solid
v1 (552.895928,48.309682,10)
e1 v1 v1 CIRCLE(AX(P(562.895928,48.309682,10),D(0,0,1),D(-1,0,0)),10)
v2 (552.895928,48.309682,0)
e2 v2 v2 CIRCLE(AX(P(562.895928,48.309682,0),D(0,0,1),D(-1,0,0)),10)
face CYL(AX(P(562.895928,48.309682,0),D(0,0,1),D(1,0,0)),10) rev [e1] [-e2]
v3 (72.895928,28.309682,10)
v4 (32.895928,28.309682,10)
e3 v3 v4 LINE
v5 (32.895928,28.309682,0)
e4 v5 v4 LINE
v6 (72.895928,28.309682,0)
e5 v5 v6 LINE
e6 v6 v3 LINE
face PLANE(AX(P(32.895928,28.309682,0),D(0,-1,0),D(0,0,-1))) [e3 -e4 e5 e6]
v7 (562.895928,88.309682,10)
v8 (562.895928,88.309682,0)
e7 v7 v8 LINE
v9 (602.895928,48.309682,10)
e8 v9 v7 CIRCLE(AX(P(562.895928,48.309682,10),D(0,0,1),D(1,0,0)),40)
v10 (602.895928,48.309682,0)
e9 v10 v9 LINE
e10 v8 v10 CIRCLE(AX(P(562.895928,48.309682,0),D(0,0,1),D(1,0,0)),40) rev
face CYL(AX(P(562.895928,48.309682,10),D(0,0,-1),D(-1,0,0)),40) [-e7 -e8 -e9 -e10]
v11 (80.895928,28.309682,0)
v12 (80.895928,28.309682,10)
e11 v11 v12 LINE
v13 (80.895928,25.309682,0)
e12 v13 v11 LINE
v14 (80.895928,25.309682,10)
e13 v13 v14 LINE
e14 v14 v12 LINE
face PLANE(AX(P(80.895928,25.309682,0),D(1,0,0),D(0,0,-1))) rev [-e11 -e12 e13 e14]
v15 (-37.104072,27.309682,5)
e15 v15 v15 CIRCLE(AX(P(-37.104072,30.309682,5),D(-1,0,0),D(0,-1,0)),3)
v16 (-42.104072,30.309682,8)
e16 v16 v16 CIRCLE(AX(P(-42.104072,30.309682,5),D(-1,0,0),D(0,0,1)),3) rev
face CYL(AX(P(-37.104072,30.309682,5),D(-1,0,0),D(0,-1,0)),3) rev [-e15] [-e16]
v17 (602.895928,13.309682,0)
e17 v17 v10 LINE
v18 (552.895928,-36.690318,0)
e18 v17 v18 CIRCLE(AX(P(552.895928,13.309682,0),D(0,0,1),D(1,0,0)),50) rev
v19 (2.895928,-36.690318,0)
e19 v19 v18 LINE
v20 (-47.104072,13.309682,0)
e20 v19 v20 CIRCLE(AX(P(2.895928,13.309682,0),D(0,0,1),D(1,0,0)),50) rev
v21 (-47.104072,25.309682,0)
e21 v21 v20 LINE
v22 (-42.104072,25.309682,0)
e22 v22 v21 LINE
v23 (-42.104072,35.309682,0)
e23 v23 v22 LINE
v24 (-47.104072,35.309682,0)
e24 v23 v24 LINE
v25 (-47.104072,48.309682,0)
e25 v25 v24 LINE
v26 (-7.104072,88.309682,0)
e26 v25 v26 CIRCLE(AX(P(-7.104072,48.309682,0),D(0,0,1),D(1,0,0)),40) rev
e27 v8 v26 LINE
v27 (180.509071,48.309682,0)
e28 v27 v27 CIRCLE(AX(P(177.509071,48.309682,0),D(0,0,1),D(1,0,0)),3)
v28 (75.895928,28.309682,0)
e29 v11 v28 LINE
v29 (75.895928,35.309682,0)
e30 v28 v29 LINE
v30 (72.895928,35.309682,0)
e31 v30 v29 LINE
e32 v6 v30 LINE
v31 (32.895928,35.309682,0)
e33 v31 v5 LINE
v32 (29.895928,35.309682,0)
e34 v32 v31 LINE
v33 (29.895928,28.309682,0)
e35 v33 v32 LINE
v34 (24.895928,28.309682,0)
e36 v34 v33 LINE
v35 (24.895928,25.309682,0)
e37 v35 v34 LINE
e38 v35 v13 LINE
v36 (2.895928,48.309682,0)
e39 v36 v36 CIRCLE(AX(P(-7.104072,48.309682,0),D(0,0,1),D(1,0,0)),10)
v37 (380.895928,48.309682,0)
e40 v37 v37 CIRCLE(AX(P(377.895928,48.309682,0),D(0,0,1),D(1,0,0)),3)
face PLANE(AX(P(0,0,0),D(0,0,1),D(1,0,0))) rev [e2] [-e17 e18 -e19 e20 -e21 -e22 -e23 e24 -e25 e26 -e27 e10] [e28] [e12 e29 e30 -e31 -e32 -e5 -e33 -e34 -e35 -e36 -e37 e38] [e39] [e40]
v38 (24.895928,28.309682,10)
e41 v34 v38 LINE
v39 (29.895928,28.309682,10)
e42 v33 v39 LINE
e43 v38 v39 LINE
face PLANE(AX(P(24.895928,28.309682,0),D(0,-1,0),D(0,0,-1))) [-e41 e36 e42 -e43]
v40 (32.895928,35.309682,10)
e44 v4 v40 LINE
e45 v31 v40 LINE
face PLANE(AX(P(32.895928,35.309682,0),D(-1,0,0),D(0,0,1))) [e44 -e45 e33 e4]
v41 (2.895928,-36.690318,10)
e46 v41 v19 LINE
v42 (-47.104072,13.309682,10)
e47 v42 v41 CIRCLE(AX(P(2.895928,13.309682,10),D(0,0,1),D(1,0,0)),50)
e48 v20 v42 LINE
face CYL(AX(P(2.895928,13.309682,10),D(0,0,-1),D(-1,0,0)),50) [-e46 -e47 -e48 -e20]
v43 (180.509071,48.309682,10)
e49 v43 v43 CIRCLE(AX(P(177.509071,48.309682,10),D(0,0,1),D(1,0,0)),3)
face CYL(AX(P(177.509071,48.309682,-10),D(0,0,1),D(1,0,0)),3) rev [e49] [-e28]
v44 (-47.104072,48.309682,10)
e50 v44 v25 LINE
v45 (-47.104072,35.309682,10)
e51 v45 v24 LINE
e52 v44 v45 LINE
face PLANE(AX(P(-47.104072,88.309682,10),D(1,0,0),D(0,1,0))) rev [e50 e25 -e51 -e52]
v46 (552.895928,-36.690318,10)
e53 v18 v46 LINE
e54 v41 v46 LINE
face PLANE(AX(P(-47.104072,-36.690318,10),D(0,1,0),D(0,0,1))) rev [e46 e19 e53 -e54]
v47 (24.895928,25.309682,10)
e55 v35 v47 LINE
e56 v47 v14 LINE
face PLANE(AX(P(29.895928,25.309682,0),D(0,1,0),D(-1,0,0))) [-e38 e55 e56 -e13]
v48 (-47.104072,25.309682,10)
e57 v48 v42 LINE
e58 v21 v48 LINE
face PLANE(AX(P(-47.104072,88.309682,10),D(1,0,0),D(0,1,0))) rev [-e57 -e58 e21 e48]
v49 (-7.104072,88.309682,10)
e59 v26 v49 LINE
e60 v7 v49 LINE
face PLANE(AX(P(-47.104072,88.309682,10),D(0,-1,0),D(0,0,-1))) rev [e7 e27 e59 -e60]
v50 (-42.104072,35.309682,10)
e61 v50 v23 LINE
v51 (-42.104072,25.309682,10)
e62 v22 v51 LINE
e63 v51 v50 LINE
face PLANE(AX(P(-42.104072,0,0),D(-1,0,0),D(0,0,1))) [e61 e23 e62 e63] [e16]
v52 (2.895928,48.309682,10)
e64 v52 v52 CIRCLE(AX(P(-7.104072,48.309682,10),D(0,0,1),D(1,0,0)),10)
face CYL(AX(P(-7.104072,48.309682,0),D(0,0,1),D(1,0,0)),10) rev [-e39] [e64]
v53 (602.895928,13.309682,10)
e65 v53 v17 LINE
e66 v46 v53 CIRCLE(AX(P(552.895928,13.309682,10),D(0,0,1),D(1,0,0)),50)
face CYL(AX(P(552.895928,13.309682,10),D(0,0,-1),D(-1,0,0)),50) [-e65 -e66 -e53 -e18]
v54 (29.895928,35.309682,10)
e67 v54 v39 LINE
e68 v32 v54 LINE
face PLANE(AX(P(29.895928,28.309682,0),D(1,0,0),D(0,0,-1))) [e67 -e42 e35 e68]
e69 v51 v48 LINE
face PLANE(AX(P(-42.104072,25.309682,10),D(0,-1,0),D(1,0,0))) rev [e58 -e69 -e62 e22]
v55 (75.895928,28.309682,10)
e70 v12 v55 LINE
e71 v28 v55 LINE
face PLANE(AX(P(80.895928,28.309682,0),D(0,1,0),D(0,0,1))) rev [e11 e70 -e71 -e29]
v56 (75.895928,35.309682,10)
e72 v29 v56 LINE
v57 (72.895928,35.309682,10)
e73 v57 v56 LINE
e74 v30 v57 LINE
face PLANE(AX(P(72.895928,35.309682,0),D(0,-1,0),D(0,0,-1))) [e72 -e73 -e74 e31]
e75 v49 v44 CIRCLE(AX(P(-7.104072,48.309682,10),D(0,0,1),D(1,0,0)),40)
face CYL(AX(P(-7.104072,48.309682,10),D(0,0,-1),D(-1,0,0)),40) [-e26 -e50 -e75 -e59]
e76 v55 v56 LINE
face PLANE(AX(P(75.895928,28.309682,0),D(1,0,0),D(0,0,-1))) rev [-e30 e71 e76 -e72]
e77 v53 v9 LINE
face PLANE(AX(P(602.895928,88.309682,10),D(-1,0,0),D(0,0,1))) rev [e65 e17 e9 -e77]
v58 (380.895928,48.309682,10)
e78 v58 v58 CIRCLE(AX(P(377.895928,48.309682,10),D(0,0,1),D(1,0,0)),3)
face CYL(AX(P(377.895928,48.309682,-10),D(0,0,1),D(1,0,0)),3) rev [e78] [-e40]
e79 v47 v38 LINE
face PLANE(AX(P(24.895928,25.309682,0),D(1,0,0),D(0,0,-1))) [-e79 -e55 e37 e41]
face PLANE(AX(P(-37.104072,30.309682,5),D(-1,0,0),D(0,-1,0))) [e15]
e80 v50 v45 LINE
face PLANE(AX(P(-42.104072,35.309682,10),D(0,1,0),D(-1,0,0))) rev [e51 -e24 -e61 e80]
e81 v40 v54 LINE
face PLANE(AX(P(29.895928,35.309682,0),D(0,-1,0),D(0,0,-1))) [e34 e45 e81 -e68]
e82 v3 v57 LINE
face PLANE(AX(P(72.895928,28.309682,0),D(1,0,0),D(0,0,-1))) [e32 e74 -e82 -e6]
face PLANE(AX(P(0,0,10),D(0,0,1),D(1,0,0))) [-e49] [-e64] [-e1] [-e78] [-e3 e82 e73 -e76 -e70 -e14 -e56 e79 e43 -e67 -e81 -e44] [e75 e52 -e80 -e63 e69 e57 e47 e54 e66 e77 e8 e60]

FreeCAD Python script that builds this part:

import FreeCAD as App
import Part
import Sketcher


def edges_at(feature, points):
    """Names of the edges that pass closest to the given points."""
    edges = feature.Shape.Edges
    near = lambda p: min(range(len(edges)), key=lambda i: edges[i].distToShape(Part.Vertex(*p))[0])
    return sorted({f"Edge{near(p) + 1}" for p in points})

doc = App.newDocument("Part")
body = doc.addObject("PartDesign::Body", "Body")

# Sketch on XY plane
sketch1 = body.newObject("Sketcher::SketchObject", "Sketch")
sketch1.AttachmentSupport = (doc.getObject("XY_Plane"), [""])
sketch1.MapMode = "FlatFace"
sketch1.addGeometry(Part.LineSegment(App.Vector(-47, 88, 0), App.Vector(-47, -37, 0)), False)
sketch1.addGeometry(Part.LineSegment(App.Vector(-47, -37, 0), App.Vector(603, -37, 0)), False)
sketch1.addGeometry(Part.LineSegment(App.Vector(603, -37, 0), App.Vector(603, 88, 0)), False)
sketch1.addGeometry(Part.LineSegment(App.Vector(603, 88, 0), App.Vector(-47, 88, 0)), False)
sketch1.addConstraint(Sketcher.Constraint("Coincident", 0, 2, 1, 1))
sketch1.addConstraint(Sketcher.Constraint("Coincident", 1, 2, 2, 1))
sketch1.addConstraint(Sketcher.Constraint("Coincident", 2, 2, 3, 1))
sketch1.addConstraint(Sketcher.Constraint("Coincident", 3, 2, 0, 1))
sketch1.addConstraint(Sketcher.Constraint("Vertical", 0))
sketch1.addConstraint(Sketcher.Constraint("Horizontal", 1))
sketch1.addConstraint(Sketcher.Constraint("Vertical", 2))
sketch1.addConstraint(Sketcher.Constraint("Horizontal", 3))
sketch1.addConstraint(Sketcher.Constraint("DistanceX", 1, 1, 1, 2, 650.0))
sketch1.addConstraint(Sketcher.Constraint("DistanceY", 0, 2, 0, 1, 125.0))
sketch1.addConstraint(Sketcher.Constraint("DistanceX", 0, 2, -1, 1, 47.104072))
sketch1.addConstraint(Sketcher.Constraint("DistanceY", 0, 2, -1, 1, 36.690318))
pad1 = body.newObject("PartDesign::Pad", "Pad")
pad1.Profile = sketch1
pad1.Length = 10

# Sketch on XY plane
sketch2 = body.newObject("Sketcher::SketchObject", "Sketch001")
sketch2.AttachmentSupport = (doc.getObject("XY_Plane"), [""])
sketch2.MapMode = "FlatFace"
sketch2.AttachmentOffset = App.Placement(App.Vector(0, 0, 10), App.Rotation())
sketch2.addGeometry(Part.Circle(App.Vector(-7, 48, 0), App.Vector(0, 0, 1), 10), False)
sketch2.addConstraint(Sketcher.Constraint("Diameter", 0, 20.0))
sketch2.addConstraint(Sketcher.Constraint("DistanceX", 0, 3, -1, 1, 7.104072))
sketch2.addConstraint(Sketcher.Constraint("DistanceY", -1, 1, 0, 3, 48.309682))
pocket1 = body.newObject("PartDesign::Pocket", "Pocket")
pocket1.Profile = sketch2
pocket1.Length = 10

# Sketch on XY plane
sketch3 = body.newObject("Sketcher::SketchObject", "Sketch002")
sketch3.AttachmentSupport = (doc.getObject("XY_Plane"), [""])
sketch3.MapMode = "FlatFace"
sketch3.AttachmentOffset = App.Placement(App.Vector(0, 0, 10), App.Rotation())
sketch3.addGeometry(Part.Circle(App.Vector(563, 48, 0), App.Vector(0, 0, 1), 10), False)
sketch3.addConstraint(Sketcher.Constraint("Diameter", 0, 20.0))
sketch3.addConstraint(Sketcher.Constraint("DistanceX", -1, 1, 0, 3, 562.895928))
sketch3.addConstraint(Sketcher.Constraint("DistanceY", -1, 1, 0, 3, 48.309682))
pocket2 = body.newObject("PartDesign::Pocket", "Pocket001")
pocket2.Profile = sketch3
pocket2.Length = 10

# Sketch on XY plane
sketch4 = body.newObject("Sketcher::SketchObject", "Sketch003")
sketch4.AttachmentSupport = (doc.getObject("XY_Plane"), [""])
sketch4.MapMode = "FlatFace"
sketch4.AttachmentOffset = App.Placement(App.Vector(0, 0, 10), App.Rotation())
sketch4.addGeometry(Part.LineSegment(App.Vector(32.9, 68.3, 0), App.Vector(72.9, 68.3, 0)), False)
sketch4.addGeometry(Part.LineSegment(App.Vector(72.9, 68.3, 0), App.Vector(72.9, 28.3, 0)), False)
sketch4.addGeometry(Part.LineSegment(App.Vector(72.9, 28.3, 0), App.Vector(32.9, 28.3, 0)), False)
sketch4.addGeometry(Part.LineSegment(App.Vector(32.9, 28.3, 0), App.Vector(32.9, 35.3, 0)), False)
sketch4.addGeometry(Part.LineSegment(App.Vector(32.9, 35.3, 0), App.Vector(29.9, 35.3, 0)), False)
sketch4.addGeometry(Part.LineSegment(App.Vector(29.9, 35.3, 0), App.Vector(29.9, 25.3, 0)), False)
sketch4.addGeometry(Part.LineSegment(App.Vector(29.9, 25.3, 0), App.Vector(75.9, 25.3, 0)), False)
sketch4.addGeometry(Part.LineSegment(App.Vector(75.9, 25.3, 0), App.Vector(75.9, 71.3, 0)), False)
sketch4.addGeometry(Part.LineSegment(App.Vector(75.9, 71.3, 0), App.Vector(29.9, 71.3, 0)), False)
sketch4.addGeometry(Part.LineSegment(App.Vector(29.9, 71.3, 0), App.Vector(29.9, 61.3, 0)), False)
sketch4.addGeometry(Part.LineSegment(App.Vector(29.9, 61.3, 0), App.Vector(32.9, 61.3, 0)), False)
sketch4.addGeometry(Part.LineSegment(App.Vector(32.9, 61.3, 0), App.Vector(32.9, 68.3, 0)), False)
sketch4.addConstraint(Sketcher.Constraint("Coincident", 0, 2, 1, 1))
sketch4.addConstraint(Sketcher.Constraint("Coincident", 1, 2, 2, 1))
sketch4.addConstraint(Sketcher.Constraint("Coincident", 2, 2, 3, 1))
sketch4.addConstraint(Sketcher.Constraint("Coincident", 3, 2, 4, 1))
sketch4.addConstraint(Sketcher.Constraint("Coincident", 4, 2, 5, 1))
sketch4.addConstraint(Sketcher.Constraint("Coincident", 5, 2, 6, 1))
sketch4.addConstraint(Sketcher.Constraint("Coincident", 6, 2, 7, 1))
sketch4.addConstraint(Sketcher.Constraint("Coincident", 7, 2, 8, 1))
sketch4.addConstraint(Sketcher.Constraint("Coincident", 8, 2, 9, 1))
sketch4.addConstraint(Sketcher.Constraint("Coincident", 9, 2, 10, 1))
sketch4.addConstraint(Sketcher.Constraint("Coincident", 10, 2, 11, 1))
sketch4.addConstraint(Sketcher.Constraint("Coincident", 11, 2, 0, 1))
sketch4.addConstraint(Sketcher.Constraint("Horizontal", 0))
sketch4.addConstraint(Sketcher.Constraint("Vertical", 1))
sketch4.addConstraint(Sketcher.Constraint("Horizontal", 2))
sketch4.addConstraint(Sketcher.Constraint("Vertical", 3))
sketch4.addConstraint(Sketcher.Constraint("Horizontal", 4))
sketch4.addConstraint(Sketcher.Constraint("Vertical", 5))
sketch4.addConstraint(Sketcher.Constraint("Horizontal", 6))
sketch4.addConstraint(Sketcher.Constraint("Vertical", 7))
sketch4.addConstraint(Sketcher.Constraint("Horizontal", 8))
sketch4.addConstraint(Sketcher.Constraint("Vertical", 9))
sketch4.addConstraint(Sketcher.Constraint("Horizontal", 10))
sketch4.addConstraint(Sketcher.Constraint("Vertical", 11))
sketch4.addConstraint(Sketcher.Constraint("Vertical", 5, 2, 8, 2))
sketch4.addConstraint(Sketcher.Constraint("Vertical", 3, 2, 10, 2))
sketch4.addConstraint(Sketcher.Constraint("Equal", 2, 1))
sketch4.addConstraint(Sketcher.Constraint("Equal", 8, 7))
sketch4.addConstraint(Sketcher.Constraint("Equal", 5, 9))
sketch4.addConstraint(Sketcher.Constraint("Equal", 3, 11))
sketch4.addConstraint(Sketcher.Constraint("DistanceX", 0, 1, 0, 2, 40.0))
sketch4.addConstraint(Sketcher.Constraint("DistanceX", 4, 2, 4, 1, 3.0))
sketch4.addConstraint(Sketcher.Constraint("DistanceX", 6, 1, 6, 2, 46.0))
sketch4.addConstraint(Sketcher.Constraint("DistanceY", 3, 1, 3, 2, 7.0))
sketch4.addConstraint(Sketcher.Constraint("DistanceX", -1, 1, 0, 2, 72.895928))
sketch4.addConstraint(Sketcher.Constraint("DistanceY", -1, 1, 0, 2, 68.309682))
pad2 = body.newObject("PartDesign::Pad", "Pad001")
pad2.Profile = sketch4
pad2.Length = 20

# Sketch on XY plane
sketch5 = body.newObject("Sketcher::SketchObject", "Sketch004")
sketch5.AttachmentSupport = (doc.getObject("XY_Plane"), [""])
sketch5.MapMode = "FlatFace"
sketch5.AttachmentOffset = App.Placement(App.Vector(0, 0, 30), App.Rotation())
sketch5.addGeometry(Part.LineSegment(App.Vector(39.9, 71.3, 0), App.Vector(39.9, 68.3, 0)), False)
sketch5.addGeometry(Part.LineSegment(App.Vector(39.9, 68.3, 0), App.Vector(65.9, 68.3, 0)), False)
sketch5.addGeometry(Part.LineSegment(App.Vector(65.9, 68.3, 0), App.Vector(65.9, 71.3, 0)), False)
sketch5.addGeometry(Part.LineSegment(App.Vector(65.9, 71.3, 0), App.Vector(39.9, 71.3, 0)), False)
sketch5.addConstraint(Sketcher.Constraint("Coincident", 0, 2, 1, 1))
sketch5.addConstraint(Sketcher.Constraint("Coincident", 1, 2, 2, 1))
sketch5.addConstraint(Sketcher.Constraint("Coincident", 2, 2, 3, 1))
sketch5.addConstraint(Sketcher.Constraint("Coincident", 3, 2, 0, 1))
sketch5.addConstraint(Sketcher.Constraint("Vertical", 0))
sketch5.addConstraint(Sketcher.Constraint("Horizontal", 1))
sketch5.addConstraint(Sketcher.Constraint("Vertical", 2))
sketch5.addConstraint(Sketcher.Constraint("Horizontal", 3))
sketch5.addConstraint(Sketcher.Constraint("DistanceX", 1, 1, 1, 2, 26.0))
sketch5.addConstraint(Sketcher.Constraint("DistanceY", 0, 2, 0, 1, 3.0))
sketch5.addConstraint(Sketcher.Constraint("DistanceX", -1, 1, 0, 2, 39.895928))
sketch5.addConstraint(Sketcher.Constraint("DistanceY", -1, 1, 0, 2, 68.309682))
pocket3 = body.newObject("PartDesign::Pocket", "Pocket002")
pocket3.Profile = sketch5
pocket3.Length = 20

# Sketch on XY plane
sketch6 = body.newObject("Sketcher::SketchObject", "Sketch005")
sketch6.AttachmentSupport = (doc.getObject("XY_Plane"), [""])
sketch6.MapMode = "FlatFace"
sketch6.AttachmentOffset = App.Placement(App.Vector(0, 0, 10), App.Rotation())
sketch6.addGeometry(Part.LineSegment(App.Vector(463.9, -36.7, 0), App.Vector(527.9, -36.7, 0)), False)
sketch6.addGeometry(Part.LineSegment(App.Vector(527.9, -36.7, 0), App.Vector(527.9, 25.3, 0)), False)
sketch6.addGeometry(Part.LineSegment(App.Vector(527.9, 25.3, 0), App.Vector(525.9, 25.3, 0)), False)
sketch6.addGeometry(Part.LineSegment(App.Vector(525.9, 25.3, 0), App.Vector(525.9, -34.7, 0)), False)
sketch6.addGeometry(Part.LineSegment(App.Vector(525.9, -34.7, 0), App.Vector(465.9, -34.7, 0)), False)
sketch6.addGeometry(Part.LineSegment(App.Vector(465.9, -34.7, 0), App.Vector(465.9, 25.3, 0)), False)
sketch6.addGeometry(Part.LineSegment(App.Vector(465.9, 25.3, 0), App.Vector(463.9, 25.3, 0)), False)
sketch6.addGeometry(Part.LineSegment(App.Vector(463.9, 25.3, 0), App.Vector(463.9, -36.7, 0)), False)
sketch6.addGeometry(Part.LineSegment(App.Vector(458.9, -36.7, 0), App.Vector(458.9, 25.3, 0)), False)
sketch6.addGeometry(Part.LineSegment(App.Vector(458.9, 25.3, 0), App.Vector(456.9, 25.3, 0)), False)
sketch6.addGeometry(Part.LineSegment(App.Vector(456.9, 25.3, 0), App.Vector(456.9, -34.7, 0)), False)
sketch6.addGeometry(Part.LineSegment(App.Vector(456.9, -34.7, 0), App.Vector(396.9, -34.7, 0)), False)
sketch6.addGeometry(Part.LineSegment(App.Vector(396.9, -34.7, 0), App.Vector(396.9, 25.3, 0)), False)
sketch6.addGeometry(Part.LineSegment(App.Vector(396.9, 25.3, 0), App.Vector(394.9, 25.3, 0)), False)
sketch6.addGeometry(Part.LineSegment(App.Vector(394.9, 25.3, 0), App.Vector(394.9, -36.7, 0)), False)
sketch6.addGeometry(Part.LineSegment(App.Vector(394.9, -36.7, 0), App.Vector(458.9, -36.7, 0)), False)
sketch6.addConstraint(Sketcher.Constraint("Coincident", 0, 2, 1, 1))
sketch6.addConstraint(Sketcher.Constraint("Coincident", 1, 2, 2, 1))
sketch6.addConstraint(Sketcher.Constraint("Coincident", 2, 2, 3, 1))
sketch6.addConstraint(Sketcher.Constraint("Coincident", 3, 2, 4, 1))
sketch6.addConstraint(Sketcher.Constraint("Coincident", 4, 2, 5, 1))
sketch6.addConstraint(Sketcher.Constraint("Coincident", 5, 2, 6, 1))
sketch6.addConstraint(Sketcher.Constraint("Coincident", 6, 2, 7, 1))
sketch6.addConstraint(Sketcher.Constraint("Coincident", 7, 2, 0, 1))
sketch6.addConstraint(Sketcher.Constraint("Coincident", 8, 2, 9, 1))
sketch6.addConstraint(Sketcher.Constraint("Coincident", 9, 2, 10, 1))
sketch6.addConstraint(Sketcher.Constraint("Coincident", 10, 2, 11, 1))
sketch6.addConstraint(Sketcher.Constraint("Coincident", 11, 2, 12, 1))
sketch6.addConstraint(Sketcher.Constraint("Coincident", 12, 2, 13, 1))
sketch6.addConstraint(Sketcher.Constraint("Coincident", 13, 2, 14, 1))
sketch6.addConstraint(Sketcher.Constraint("Coincident", 14, 2, 15, 1))
sketch6.addConstraint(Sketcher.Constraint("Coincident", 15, 2, 8, 1))
sketch6.addConstraint(Sketcher.Constraint("Horizontal", 0))
sketch6.addConstraint(Sketcher.Constraint("Vertical", 1))
sketch6.addConstraint(Sketcher.Constraint("Horizontal", 2))
sketch6.addConstraint(Sketcher.Constraint("Vertical", 3))
sketch6.addConstraint(Sketcher.Constraint("Horizontal", 4))
sketch6.addConstraint(Sketcher.Constraint("Vertical", 5))
sketch6.addConstraint(Sketcher.Constraint("Horizontal", 6))
sketch6.addConstraint(Sketcher.Constraint("Vertical", 7))
sketch6.addConstraint(Sketcher.Constraint("Vertical", 8))
sketch6.addConstraint(Sketcher.Constraint("Horizontal", 9))
sketch6.addConstraint(Sketcher.Constraint("Vertical", 10))
sketch6.addConstraint(Sketcher.Constraint("Horizontal", 11))
sketch6.addConstraint(Sketcher.Constraint("Vertical", 12))
sketch6.addConstraint(Sketcher.Constraint("Horizontal", 13))
sketch6.addConstraint(Sketcher.Constraint("Vertical", 14))
sketch6.addConstraint(Sketcher.Constraint("Horizontal", 15))
sketch6.addConstraint(Sketcher.Constraint("Horizontal", 2, 2, 5, 2))
sketch6.addConstraint(Sketcher.Constraint("Horizontal", 6, 2, 8, 2))
sketch6.addConstraint(Sketcher.Constraint("Horizontal", 4, 2, 10, 2))
sketch6.addConstraint(Sketcher.Constraint("Horizontal", 9, 2, 12, 2))
sketch6.addConstraint(Sketcher.Constraint("Horizontal", 7, 2, 14, 2))
sketch6.addConstraint(Sketcher.Constraint("Equal", 2, 6))
sketch6.addConstraint(Sketcher.Constraint("Equal", 6, 9))
sketch6.addConstraint(Sketcher.Constraint("Equal", 4, 11))
sketch6.addConstraint(Sketcher.Constraint("Equal", 9, 13))
sketch6.addConstraint(Sketcher.Constraint("Equal", 11, 3))
sketch6.addConstraint(Sketcher.Constraint("DistanceX", 0, 1, 0, 2, 64.0))
sketch6.addConstraint(Sketcher.Constraint("DistanceX", 2, 2, 2, 1, 2.0))
sketch6.addConstraint(Sketcher.Constraint("DistanceY", 1, 1, 1, 2, 62.0))
sketch6.addConstraint(Sketcher.Constraint("DistanceX", 8, 2, 6, 2, 5.0))
sketch6.addConstraint(Sketcher.Constraint("DistanceX", -1, 1, 0, 2, 527.895928))
sketch6.addConstraint(Sketcher.Constraint("DistanceY", 0, 2, -1, 1, 36.690318))
pad3 = body.newObject("PartDesign::Pad", "Pad002")
pad3.Profile = sketch6
pad3.Length = 20

# Sketch on XY plane
sketch7 = body.newObject("Sketcher::SketchObject", "Sketch006")
sketch7.AttachmentSupport = (doc.getObject("XY_Plane"), [""])
sketch7.MapMode = "FlatFace"
sketch7.AttachmentOffset = App.Placement(App.Vector(0, 0, 10), App.Rotation())
sketch7.addGeometry(Part.Circle(App.Vector(177.5, 48.3, 0), App.Vector(0, 0, 1), 3), False)
sketch7.addGeometry(Part.Circle(App.Vector(377.9, 48.3, 0), App.Vector(0, 0, 1), 3), False)
sketch7.addConstraint(Sketcher.Constraint("Equal", 0, 1))
sketch7.addConstraint(Sketcher.Constraint("Horizontal", 0, 3, 1, 3))
sketch7.addConstraint(Sketcher.Constraint("Diameter", 0, 6.0))
sketch7.addConstraint(Sketcher.Constraint("DistanceX", -1, 1, 0, 3, 177.509071))
sketch7.addConstraint(Sketcher.Constraint("DistanceY", -1, 1, 0, 3, 48.309682))
sketch7.addConstraint(Sketcher.Constraint("DistanceX", -1, 1, 1, 3, 377.895928))
pocket4 = body.newObject("PartDesign::Pocket", "Pocket003")
pocket4.Profile = sketch7
pocket4.Length = 20
doc.recompute()

fillet = body.newObject("PartDesign::Fillet", "Fillet")
fillet.Base = (pocket4, edges_at(pocket4, [(602.896, -36.69, 5)]))
fillet.Radius = 50
doc.recompute()

fillet2 = body.newObject("PartDesign::Fillet", "Fillet001")
fillet2.Base = (fillet, edges_at(fillet, [(602.896, 88.31, 5)]))
fillet2.Radius = 40
doc.recompute()

fillet3 = body.newObject("PartDesign::Fillet", "Fillet002")
fillet3.Base = (fillet2, edges_at(fillet2, [(-47.104, -36.69, 5)]))
fillet3.Radius = 50
doc.recompute()

fillet4 = body.newObject("PartDesign::Fillet", "Fillet003")
fillet4.Base = (fillet3, edges_at(fillet3, [(-47.104, 88.31, 5)]))
fillet4.Radius = 40

# Sketch on YZ plane
sketch8 = body.newObject("Sketcher::SketchObject", "Sketch007")
sketch8.AttachmentSupport = (doc.getObject("YZ_Plane"), [""])
sketch8.MapMode = "FlatFace"
sketch8.AttachmentOffset = App.Placement(App.Vector(0, 0, -47.104072), App.Rotation())
sketch8.addGeometry(Part.Circle(App.Vector(30.3, 5, 0), App.Vector(0, 0, 1), 3), False)
sketch8.addConstraint(Sketcher.Constraint("Diameter", 0, 6.0))
sketch8.addConstraint(Sketcher.Constraint("DistanceY", -1, 1, 0, 3, 5.0))
sketch8.addConstraint(Sketcher.Constraint("DistanceX", -1, 1, 0, 3, 30.309682))
pocket5 = body.newObject("PartDesign::Pocket", "Pocket004")
pocket5.Profile = sketch8
pocket5.Length = 10
pocket5.Reversed = True

# Sketch on YZ plane
sketch9 = body.newObject("Sketcher::SketchObject", "Sketch008")
sketch9.AttachmentSupport = (doc.getObject("YZ_Plane"), [""])
sketch9.MapMode = "FlatFace"
sketch9.AttachmentOffset = App.Placement(App.Vector(0, 0, -47.104072), App.Rotation())
sketch9.addGeometry(Part.LineSegment(App.Vector(35, 0, 0), App.Vector(25, 0, 0)), False)
sketch9.addGeometry(Part.LineSegment(App.Vector(25, 0, 0), App.Vector(25, 10, 0)), False)
sketch9.addGeometry(Part.LineSegment(App.Vector(25, 10, 0), App.Vector(35, 10, 0)), False)
sketch9.addGeometry(Part.LineSegment(App.Vector(35, 10, 0), App.Vector(35, 0, 0)), False)
sketch9.addConstraint(Sketcher.Constraint("Coincident", 0, 2, 1, 1))
sketch9.addConstraint(Sketcher.Constraint("Coincident", 1, 2, 2, 1))
sketch9.addConstraint(Sketcher.Constraint("Coincident", 2, 2, 3, 1))
sketch9.addConstraint(Sketcher.Constraint("Coincident", 3, 2, 0, 1))
sketch9.addConstraint(Sketcher.Constraint("Horizontal", 0))
sketch9.addConstraint(Sketcher.Constraint("Vertical", 1))
sketch9.addConstraint(Sketcher.Constraint("Horizontal", 2))
sketch9.addConstraint(Sketcher.Constraint("Vertical", 3))
sketch9.addConstraint(Sketcher.Constraint("PointOnObject", 0, 2, -1))
sketch9.addConstraint(Sketcher.Constraint("Equal", 2, 1))
sketch9.addConstraint(Sketcher.Constraint("DistanceX", 0, 2, 0, 1, 10.0))
sketch9.addConstraint(Sketcher.Constraint("DistanceX", -1, 1, 0, 2, 25.309682))
pocket6 = body.newObject("PartDesign::Pocket", "Pocket005")
pocket6.Profile = sketch9
pocket6.Length = 5
pocket6.Reversed = True

# Sketch on XY plane
sketch10 = body.newObject("Sketcher::SketchObject", "Sketch009")
sketch10.AttachmentSupport = (doc.getObject("XY_Plane"), [""])
sketch10.MapMode = "FlatFace"
sketch10.AttachmentOffset = App.Placement(App.Vector(0, 0, 30), App.Rotation())
sketch10.addGeometry(Part.LineSegment(App.Vector(32.9, 35.3, 0), App.Vector(29.9, 35.3, 0)), False)
sketch10.addGeometry(Part.LineSegment(App.Vector(29.9, 35.3, 0), App.Vector(29.9, 28.3, 0)), False)
sketch10.addGeometry(Part.LineSegment(App.Vector(29.9, 28.3, 0), App.Vector(24.9, 28.3, 0)), False)
sketch10.addGeometry(Part.LineSegment(App.Vector(24.9, 28.3, 0), App.Vector(24.9, 25.3, 0)), False)
sketch10.addGeometry(Part.LineSegment(App.Vector(24.9, 25.3, 0), App.Vector(80.9, 25.3, 0)), False)
sketch10.addGeometry(Part.LineSegment(App.Vector(80.9, 25.3, 0), App.Vector(80.9, 28.3, 0)), False)
sketch10.addGeometry(Part.LineSegment(App.Vector(80.9, 28.3, 0), App.Vector(75.9, 28.3, 0)), False)
sketch10.addGeometry(Part.LineSegment(App.Vector(75.9, 28.3, 0), App.Vector(75.9, 35.3, 0)), False)
sketch10.addGeometry(Part.LineSegment(App.Vector(75.9, 35.3, 0), App.Vector(72.9, 35.3, 0)), False)
sketch10.addGeometry(Part.LineSegment(App.Vector(72.9, 35.3, 0), App.Vector(72.9, 28.3, 0)), False)
sketch10.addGeometry(Part.LineSegment(App.Vector(72.9, 28.3, 0), App.Vector(32.9, 28.3, 0)), False)
sketch10.addGeometry(Part.LineSegment(App.Vector(32.9, 28.3, 0), App.Vector(32.9, 35.3, 0)), False)
sketch10.addConstraint(Sketcher.Constraint("Coincident", 0, 2, 1, 1))
sketch10.addConstraint(Sketcher.Constraint("Coincident", 1, 2, 2, 1))
sketch10.addConstraint(Sketcher.Constraint("Coincident", 2, 2, 3, 1))
sketch10.addConstraint(Sketcher.Constraint("Coincident", 3, 2, 4, 1))
sketch10.addConstraint(Sketcher.Constraint("Coincident", 4, 2, 5, 1))
sketch10.addConstraint(Sketcher.Constraint("Coincident", 5, 2, 6, 1))
sketch10.addConstraint(Sketcher.Constraint("Coincident", 6, 2, 7, 1))
sketch10.addConstraint(Sketcher.Constraint("Coincident", 7, 2, 8, 1))
sketch10.addConstraint(Sketcher.Constraint("Coincident", 8, 2, 9, 1))
sketch10.addConstraint(Sketcher.Constraint("Coincident", 9, 2, 10, 1))
sketch10.addConstraint(Sketcher.Constraint("Coincident", 10, 2, 11, 1))
sketch10.addConstraint(Sketcher.Constraint("Coincident", 11, 2, 0, 1))
sketch10.addConstraint(Sketcher.Constraint("Horizontal", 0))
sketch10.addConstraint(Sketcher.Constraint("Vertical", 1))
sketch10.addConstraint(Sketcher.Constraint("Horizontal", 2))
sketch10.addConstraint(Sketcher.Constraint("Vertical", 3))
sketch10.addConstraint(Sketcher.Constraint("Horizontal", 4))
sketch10.addConstraint(Sketcher.Constraint("Vertical", 5))
sketch10.addConstraint(Sketcher.Constraint("Horizontal", 6))
sketch10.addConstraint(Sketcher.Constraint("Vertical", 7))
sketch10.addConstraint(Sketcher.Constraint("Horizontal", 8))
sketch10.addConstraint(Sketcher.Constraint("Vertical", 9))
sketch10.addConstraint(Sketcher.Constraint("Horizontal", 10))
sketch10.addConstraint(Sketcher.Constraint("Vertical", 11))
sketch10.addConstraint(Sketcher.Constraint("Horizontal", 2, 2, 5, 2))
sketch10.addConstraint(Sketcher.Constraint("Horizontal", 0, 2, 7, 2))
sketch10.addConstraint(Sketcher.Constraint("Horizontal", 6, 2, 9, 2))
sketch10.addConstraint(Sketcher.Constraint("Equal", 2, 6))
sketch10.addConstraint(Sketcher.Constraint("Equal", 0, 8))
sketch10.addConstraint(Sketcher.Constraint("Equal", 8, 3))
sketch10.addConstraint(Sketcher.Constraint("DistanceX", 0, 2, 0, 1, 3.0))
sketch10.addConstraint(Sketcher.Constraint("DistanceX", 2, 2, 2, 1, 5.0))
sketch10.addConstraint(Sketcher.Constraint("DistanceX", 4, 1, 4, 2, 56.0))
sketch10.addConstraint(Sketcher.Constraint("DistanceY", 1, 2, 1, 1, 7.0))
sketch10.addConstraint(Sketcher.Constraint("DistanceX", -1, 1, 0, 2, 29.895928))
sketch10.addConstraint(Sketcher.Constraint("DistanceY", -1, 1, 0, 2, 35.309682))
pocket7 = body.newObject("PartDesign::Pocket", "Pocket006")
pocket7.Profile = sketch10
pocket7.Length = 30

# Sketch on XZ plane
sketch11 = body.newObject("Sketcher::SketchObject", "Sketch010")
sketch11.AttachmentSupport = (doc.getObject("XZ_Plane"), [""])
sketch11.MapMode = "FlatFace"
sketch11.AttachmentOffset = App.Placement(App.Vector(0, 0, 36.690318), App.Rotation())
sketch11.addGeometry(Part.LineSegment(App.Vector(395, 30, 0), App.Vector(395, 10, 0)), False)
sketch11.addGeometry(Part.LineSegment(App.Vector(395, 10, 0), App.Vector(528, 10, 0)), False)
sketch11.addGeometry(Part.LineSegment(App.Vector(528, 10, 0), App.Vector(528, 30, 0)), False)
sketch11.addGeometry(Part.LineSegment(App.Vector(528, 30, 0), App.Vector(395, 30, 0)), False)
sketch11.addConstraint(Sketcher.Constraint("Coincident", 0, 2, 1, 1))
sketch11.addConstraint(Sketcher.Constraint("Coincident", 1, 2, 2, 1))
sketch11.addConstraint(Sketcher.Constraint("Coincident", 2, 2, 3, 1))
sketch11.addConstraint(Sketcher.Constraint("Coincident", 3, 2, 0, 1))
sketch11.addConstraint(Sketcher.Constraint("Vertical", 0))
sketch11.addConstraint(Sketcher.Constraint("Horizontal", 1))
sketch11.addConstraint(Sketcher.Constraint("Vertical", 2))
sketch11.addConstraint(Sketcher.Constraint("Horizontal", 3))
sketch11.addConstraint(Sketcher.Constraint("DistanceX", 1, 1, 1, 2, 133.0))
sketch11.addConstraint(Sketcher.Constraint("DistanceY", 0, 2, 0, 1, 20.0))
sketch11.addConstraint(Sketcher.Constraint("DistanceY", -1, 1, 0, 2, 10.0))
sketch11.addConstraint(Sketcher.Constraint("DistanceX", -1, 1, 0, 2, 394.895928))
pocket8 = body.newObject("PartDesign::Pocket", "Pocket007")
pocket8.Profile = sketch11
pocket8.Length = 100

# Sketch on YZ plane
sketch12 = body.newObject("Sketcher::SketchObject", "Sketch011")
sketch12.AttachmentSupport = (doc.getObject("YZ_Plane"), [""])
sketch12.MapMode = "FlatFace"
sketch12.AttachmentOffset = App.Placement(App.Vector(0, 0, 75.895928), App.Rotation())
sketch12.addGeometry(Part.LineSegment(App.Vector(71, 30, 0), App.Vector(35, 30, 0)), False)
sketch12.addGeometry(Part.LineSegment(App.Vector(35, 30, 0), App.Vector(35, 10, 0)), False)
sketch12.addGeometry(Part.LineSegment(App.Vector(35, 10, 0), App.Vector(71, 10, 0)), False)
sketch12.addGeometry(Part.LineSegment(App.Vector(71, 10, 0), App.Vector(71, 30, 0)), False)
sketch12.addConstraint(Sketcher.Constraint("Coincident", 0, 2, 1, 1))
sketch12.addConstraint(Sketcher.Constraint("Coincident", 1, 2, 2, 1))
sketch12.addConstraint(Sketcher.Constraint("Coincident", 2, 2, 3, 1))
sketch12.addConstraint(Sketcher.Constraint("Coincident", 3, 2, 0, 1))
sketch12.addConstraint(Sketcher.Constraint("Horizontal", 0))
sketch12.addConstraint(Sketcher.Constraint("Vertical", 1))
sketch12.addConstraint(Sketcher.Constraint("Horizontal", 2))
sketch12.addConstraint(Sketcher.Constraint("Vertical", 3))
sketch12.addConstraint(Sketcher.Constraint("DistanceX", 0, 2, 0, 1, 36.0))
sketch12.addConstraint(Sketcher.Constraint("DistanceY", 1, 2, 1, 1, 20.0))
sketch12.addConstraint(Sketcher.Constraint("DistanceY", -1, 1, 0, 2, 30.0))
sketch12.addConstraint(Sketcher.Constraint("DistanceX", -1, 1, 0, 2, 35.309682))
pocket9 = body.newObject("PartDesign::Pocket", "Pocket008")
pocket9.Profile = sketch12
pocket9.Length = 100

doc.recompute()
